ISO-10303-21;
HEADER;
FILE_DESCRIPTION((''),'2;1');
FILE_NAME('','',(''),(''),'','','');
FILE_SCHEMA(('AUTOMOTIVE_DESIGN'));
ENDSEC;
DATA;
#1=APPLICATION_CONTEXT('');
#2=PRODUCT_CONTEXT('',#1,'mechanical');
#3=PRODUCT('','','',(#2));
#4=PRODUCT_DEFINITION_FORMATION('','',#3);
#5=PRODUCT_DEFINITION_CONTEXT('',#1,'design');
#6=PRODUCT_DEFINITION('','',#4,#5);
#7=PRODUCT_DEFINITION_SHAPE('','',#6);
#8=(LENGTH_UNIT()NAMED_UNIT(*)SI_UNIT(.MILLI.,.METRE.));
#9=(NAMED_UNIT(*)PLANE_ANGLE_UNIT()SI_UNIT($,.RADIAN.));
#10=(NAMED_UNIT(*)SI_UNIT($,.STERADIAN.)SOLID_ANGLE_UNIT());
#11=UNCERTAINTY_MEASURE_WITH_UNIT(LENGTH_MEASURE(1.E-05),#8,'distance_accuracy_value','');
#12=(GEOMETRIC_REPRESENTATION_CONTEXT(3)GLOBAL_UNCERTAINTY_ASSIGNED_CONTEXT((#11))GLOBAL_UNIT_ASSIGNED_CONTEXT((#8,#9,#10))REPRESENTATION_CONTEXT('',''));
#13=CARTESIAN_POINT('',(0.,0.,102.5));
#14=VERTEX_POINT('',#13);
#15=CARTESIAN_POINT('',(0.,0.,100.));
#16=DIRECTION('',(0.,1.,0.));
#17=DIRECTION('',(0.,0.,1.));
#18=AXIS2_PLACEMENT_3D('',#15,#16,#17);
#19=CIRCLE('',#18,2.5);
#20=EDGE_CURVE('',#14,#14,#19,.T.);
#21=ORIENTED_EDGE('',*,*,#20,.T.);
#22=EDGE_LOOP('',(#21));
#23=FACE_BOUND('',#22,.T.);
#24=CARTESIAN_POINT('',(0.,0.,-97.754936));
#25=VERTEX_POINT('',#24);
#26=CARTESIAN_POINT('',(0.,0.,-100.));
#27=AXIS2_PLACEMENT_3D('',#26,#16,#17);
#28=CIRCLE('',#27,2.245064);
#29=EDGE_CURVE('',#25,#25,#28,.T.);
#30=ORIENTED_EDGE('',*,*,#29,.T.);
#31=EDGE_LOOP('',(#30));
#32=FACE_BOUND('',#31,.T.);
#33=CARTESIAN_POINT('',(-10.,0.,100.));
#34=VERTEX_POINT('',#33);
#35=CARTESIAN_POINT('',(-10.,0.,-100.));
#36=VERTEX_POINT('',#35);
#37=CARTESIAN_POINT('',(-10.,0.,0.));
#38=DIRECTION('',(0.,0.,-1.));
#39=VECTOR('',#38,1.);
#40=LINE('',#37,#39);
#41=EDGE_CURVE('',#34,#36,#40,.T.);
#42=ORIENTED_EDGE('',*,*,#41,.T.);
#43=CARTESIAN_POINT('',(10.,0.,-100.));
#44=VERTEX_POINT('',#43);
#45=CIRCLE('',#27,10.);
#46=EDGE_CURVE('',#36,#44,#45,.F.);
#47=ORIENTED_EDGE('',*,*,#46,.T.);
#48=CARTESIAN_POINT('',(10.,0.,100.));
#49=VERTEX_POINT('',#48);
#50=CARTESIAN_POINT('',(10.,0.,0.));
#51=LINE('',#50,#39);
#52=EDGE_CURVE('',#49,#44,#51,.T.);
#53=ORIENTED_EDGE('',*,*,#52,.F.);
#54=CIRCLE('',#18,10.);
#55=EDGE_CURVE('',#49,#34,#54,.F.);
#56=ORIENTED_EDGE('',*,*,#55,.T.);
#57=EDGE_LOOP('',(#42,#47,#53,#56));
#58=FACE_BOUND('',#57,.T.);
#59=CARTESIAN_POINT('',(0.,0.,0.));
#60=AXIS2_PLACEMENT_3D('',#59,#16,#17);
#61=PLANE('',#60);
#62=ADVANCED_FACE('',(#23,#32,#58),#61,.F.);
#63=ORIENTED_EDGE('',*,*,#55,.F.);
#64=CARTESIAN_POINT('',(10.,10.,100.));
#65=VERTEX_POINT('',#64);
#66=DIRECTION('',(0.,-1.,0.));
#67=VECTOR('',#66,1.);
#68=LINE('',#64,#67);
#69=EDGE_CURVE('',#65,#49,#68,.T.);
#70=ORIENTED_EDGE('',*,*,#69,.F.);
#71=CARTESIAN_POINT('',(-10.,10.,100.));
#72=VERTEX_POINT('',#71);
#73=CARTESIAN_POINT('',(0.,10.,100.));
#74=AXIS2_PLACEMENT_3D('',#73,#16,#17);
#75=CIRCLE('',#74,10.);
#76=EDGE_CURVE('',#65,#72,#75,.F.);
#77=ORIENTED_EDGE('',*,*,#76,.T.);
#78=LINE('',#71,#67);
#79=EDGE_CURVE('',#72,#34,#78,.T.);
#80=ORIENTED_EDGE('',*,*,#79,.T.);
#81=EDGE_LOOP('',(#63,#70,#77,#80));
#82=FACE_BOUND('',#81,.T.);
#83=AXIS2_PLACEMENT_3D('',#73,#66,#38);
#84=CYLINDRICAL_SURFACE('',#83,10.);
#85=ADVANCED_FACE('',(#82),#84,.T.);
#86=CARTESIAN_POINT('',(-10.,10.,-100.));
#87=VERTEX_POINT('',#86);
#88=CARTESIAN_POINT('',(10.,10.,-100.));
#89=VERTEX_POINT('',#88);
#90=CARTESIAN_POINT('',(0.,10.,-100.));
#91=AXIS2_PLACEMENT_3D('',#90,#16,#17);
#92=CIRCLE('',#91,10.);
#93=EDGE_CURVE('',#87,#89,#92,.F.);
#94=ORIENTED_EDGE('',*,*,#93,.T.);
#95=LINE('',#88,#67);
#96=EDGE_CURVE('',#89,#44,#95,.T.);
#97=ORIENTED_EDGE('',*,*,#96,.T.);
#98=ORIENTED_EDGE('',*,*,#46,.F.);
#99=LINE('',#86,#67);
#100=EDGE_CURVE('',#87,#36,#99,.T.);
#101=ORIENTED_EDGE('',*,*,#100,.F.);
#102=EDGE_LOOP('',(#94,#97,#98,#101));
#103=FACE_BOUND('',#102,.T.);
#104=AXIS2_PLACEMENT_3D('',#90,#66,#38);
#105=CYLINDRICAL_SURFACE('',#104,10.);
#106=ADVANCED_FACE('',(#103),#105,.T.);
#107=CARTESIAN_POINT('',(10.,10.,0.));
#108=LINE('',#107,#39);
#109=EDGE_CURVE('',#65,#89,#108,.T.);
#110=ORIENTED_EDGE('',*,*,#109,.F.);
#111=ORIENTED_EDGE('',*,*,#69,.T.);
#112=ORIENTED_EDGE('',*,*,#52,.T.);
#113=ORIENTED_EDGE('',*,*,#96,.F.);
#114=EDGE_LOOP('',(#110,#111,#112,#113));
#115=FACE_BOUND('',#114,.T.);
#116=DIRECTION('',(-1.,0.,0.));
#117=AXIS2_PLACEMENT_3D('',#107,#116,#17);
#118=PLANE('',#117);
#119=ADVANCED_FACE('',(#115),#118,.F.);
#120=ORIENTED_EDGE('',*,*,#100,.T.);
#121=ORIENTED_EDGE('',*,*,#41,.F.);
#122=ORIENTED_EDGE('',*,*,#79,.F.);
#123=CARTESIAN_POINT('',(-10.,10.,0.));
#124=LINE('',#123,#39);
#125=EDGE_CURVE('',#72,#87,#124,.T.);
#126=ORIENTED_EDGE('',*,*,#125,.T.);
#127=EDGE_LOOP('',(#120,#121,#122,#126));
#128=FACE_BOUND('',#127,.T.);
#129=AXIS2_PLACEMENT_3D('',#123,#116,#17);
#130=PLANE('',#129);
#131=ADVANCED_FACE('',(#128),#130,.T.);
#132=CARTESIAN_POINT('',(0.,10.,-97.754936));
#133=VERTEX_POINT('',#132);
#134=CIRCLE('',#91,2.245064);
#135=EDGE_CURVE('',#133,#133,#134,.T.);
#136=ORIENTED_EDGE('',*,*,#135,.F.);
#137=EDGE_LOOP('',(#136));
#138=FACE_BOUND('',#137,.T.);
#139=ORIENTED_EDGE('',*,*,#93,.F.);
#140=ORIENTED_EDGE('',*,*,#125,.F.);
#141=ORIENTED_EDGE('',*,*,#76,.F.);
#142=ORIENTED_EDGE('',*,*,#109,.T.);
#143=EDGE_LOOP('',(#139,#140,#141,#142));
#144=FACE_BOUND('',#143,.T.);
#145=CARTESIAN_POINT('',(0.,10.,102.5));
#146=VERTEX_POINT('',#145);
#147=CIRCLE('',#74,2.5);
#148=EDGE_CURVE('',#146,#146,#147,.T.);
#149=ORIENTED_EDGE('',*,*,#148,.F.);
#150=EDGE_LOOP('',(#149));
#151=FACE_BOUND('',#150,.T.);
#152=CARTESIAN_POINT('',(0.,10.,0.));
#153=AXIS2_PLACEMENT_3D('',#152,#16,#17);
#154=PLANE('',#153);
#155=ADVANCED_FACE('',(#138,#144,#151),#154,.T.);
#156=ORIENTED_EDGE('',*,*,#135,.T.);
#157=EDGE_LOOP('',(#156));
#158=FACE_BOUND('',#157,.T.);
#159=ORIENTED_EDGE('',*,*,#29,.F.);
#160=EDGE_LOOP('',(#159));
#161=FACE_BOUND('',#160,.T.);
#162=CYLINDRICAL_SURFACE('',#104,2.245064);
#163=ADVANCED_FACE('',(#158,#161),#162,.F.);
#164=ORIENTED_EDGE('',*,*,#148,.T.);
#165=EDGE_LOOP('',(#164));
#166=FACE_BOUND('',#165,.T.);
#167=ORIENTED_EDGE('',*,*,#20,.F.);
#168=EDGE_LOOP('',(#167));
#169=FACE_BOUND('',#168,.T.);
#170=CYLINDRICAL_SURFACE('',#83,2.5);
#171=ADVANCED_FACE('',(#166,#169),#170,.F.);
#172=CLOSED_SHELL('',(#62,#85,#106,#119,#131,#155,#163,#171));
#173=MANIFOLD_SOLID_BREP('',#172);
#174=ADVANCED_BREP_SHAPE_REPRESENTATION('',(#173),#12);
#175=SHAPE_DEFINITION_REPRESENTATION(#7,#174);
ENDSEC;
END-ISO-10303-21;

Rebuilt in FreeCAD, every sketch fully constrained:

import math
import FreeCAD as App
import Part
import Sketcher

doc = App.newDocument("Part")
body = doc.addObject("PartDesign::Body", "Body")

# Sketch on XZ plane
sketch1 = body.newObject("Sketcher::SketchObject", "Sketch")
sketch1.AttachmentSupport = (doc.getObject("XZ_Plane"), [""])
sketch1.MapMode = "FlatFace"
sketch1.addGeometry([
    Part.ArcOfCircle(Part.Circle(App.Vector(0, 100, 0), App.Vector(0, 0, 1), 10), math.radians(0), math.radians(180)),  # 0
    Part.LineSegment(App.Vector(10, 100, 0), App.Vector(10, -100, 0)),  # 1
    Part.ArcOfCircle(Part.Circle(App.Vector(0, -100, 0), App.Vector(0, 0, 1), 10), math.radians(180), math.radians(360)),  # 2
    Part.LineSegment(App.Vector(-10, -100, 0), App.Vector(-10, 100, 0)),  # 3
    Part.Circle(App.Vector(0, 100, 0), App.Vector(0, 0, 1), 2.5),  # 4
    Part.Circle(App.Vector(0, -100, 0), App.Vector(0, 0, 1), 2.2),  # 5
], False)
sketch1.addConstraint([
    Sketcher.Constraint("Tangent", 0, 1, 1, 1),
    Sketcher.Constraint("Tangent", 1, 2, 2, 2),
    Sketcher.Constraint("Tangent", 2, 1, 3, 1),
    Sketcher.Constraint("Tangent", 3, 2, 0, 2),
    Sketcher.Constraint("Vertical", 1),
    Sketcher.Constraint("Vertical", 3),
    Sketcher.Constraint("Coincident", 4, 3, 0, 3),
    Sketcher.Constraint("Coincident", 5, 3, 2, 3),
    Sketcher.Constraint("Symmetric", 0, 3, 2, 3, -1, 1),
    Sketcher.Constraint("Diameter", 4, 5.0),
    Sketcher.Constraint("Radius", 0, 10.0),
    Sketcher.Constraint("DistanceY", 1, 2, 1, 1, 200.0),
    Sketcher.Constraint("Diameter", 5, 4.490128),
])
pad1 = body.newObject("PartDesign::Pad", "Pad")
pad1.Profile = sketch1
pad1.Length = 10
pad1.Reversed = True

doc.recompute()
